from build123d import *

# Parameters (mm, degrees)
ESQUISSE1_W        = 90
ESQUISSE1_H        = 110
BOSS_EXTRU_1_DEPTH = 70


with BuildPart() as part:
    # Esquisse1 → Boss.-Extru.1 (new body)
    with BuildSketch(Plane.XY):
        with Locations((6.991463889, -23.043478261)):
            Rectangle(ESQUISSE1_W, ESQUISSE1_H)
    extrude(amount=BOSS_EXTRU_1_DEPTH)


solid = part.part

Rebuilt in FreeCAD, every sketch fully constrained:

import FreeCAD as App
import Part
import Sketcher

V = App.Vector


def add_polygon(sketch, points):
    """Adds a closed chain of lines whose ends are joined by coincident constraints."""
    first, n = sketch.GeometryCount, len(points)
    for a, b in zip(points, points[1:] + points[:1]):
        sketch.addGeometry(Part.LineSegment(App.Vector(*a, 0), App.Vector(*b, 0)), False)
    for i in range(n):
        sketch.addConstraint(Sketcher.Constraint("Coincident", first + i, 2, first + (i + 1) % n, 1))

doc = App.newDocument("Part")
body = doc.addObject("PartDesign::Body", "Body")

sketch1 = body.newObject("Sketcher::SketchObject", "Sketch")
sketch1.AttachmentSupport = (doc.getObject("XY_Plane"), [""])
sketch1.MapMode = "FlatFace"
add_polygon(sketch1, [(-38, 32), (-38, -78), (52, -78), (52, 32)])
sketch1.addConstraint(Sketcher.Constraint("Vertical", 0))
sketch1.addConstraint(Sketcher.Constraint("Horizontal", 1))
sketch1.addConstraint(Sketcher.Constraint("Vertical", 2))
sketch1.addConstraint(Sketcher.Constraint("Horizontal", 3))
sketch1.addConstraint(Sketcher.Constraint("DistanceX", 1, 1, 1, 2, 90.0))
sketch1.addConstraint(Sketcher.Constraint("DistanceY", 0, 2, 0, 1, 110.0))
sketch1.addConstraint(Sketcher.Constraint("DistanceY", 0, 2, -1, 1, 78.043478))
sketch1.addConstraint(Sketcher.Constraint("DistanceX", 0, 2, -1, 1, 38.008536))
pad1 = body.newObject("PartDesign::Pad", "Pad")
pad1.Profile = sketch1
pad1.Length = 70

doc.recompute()
